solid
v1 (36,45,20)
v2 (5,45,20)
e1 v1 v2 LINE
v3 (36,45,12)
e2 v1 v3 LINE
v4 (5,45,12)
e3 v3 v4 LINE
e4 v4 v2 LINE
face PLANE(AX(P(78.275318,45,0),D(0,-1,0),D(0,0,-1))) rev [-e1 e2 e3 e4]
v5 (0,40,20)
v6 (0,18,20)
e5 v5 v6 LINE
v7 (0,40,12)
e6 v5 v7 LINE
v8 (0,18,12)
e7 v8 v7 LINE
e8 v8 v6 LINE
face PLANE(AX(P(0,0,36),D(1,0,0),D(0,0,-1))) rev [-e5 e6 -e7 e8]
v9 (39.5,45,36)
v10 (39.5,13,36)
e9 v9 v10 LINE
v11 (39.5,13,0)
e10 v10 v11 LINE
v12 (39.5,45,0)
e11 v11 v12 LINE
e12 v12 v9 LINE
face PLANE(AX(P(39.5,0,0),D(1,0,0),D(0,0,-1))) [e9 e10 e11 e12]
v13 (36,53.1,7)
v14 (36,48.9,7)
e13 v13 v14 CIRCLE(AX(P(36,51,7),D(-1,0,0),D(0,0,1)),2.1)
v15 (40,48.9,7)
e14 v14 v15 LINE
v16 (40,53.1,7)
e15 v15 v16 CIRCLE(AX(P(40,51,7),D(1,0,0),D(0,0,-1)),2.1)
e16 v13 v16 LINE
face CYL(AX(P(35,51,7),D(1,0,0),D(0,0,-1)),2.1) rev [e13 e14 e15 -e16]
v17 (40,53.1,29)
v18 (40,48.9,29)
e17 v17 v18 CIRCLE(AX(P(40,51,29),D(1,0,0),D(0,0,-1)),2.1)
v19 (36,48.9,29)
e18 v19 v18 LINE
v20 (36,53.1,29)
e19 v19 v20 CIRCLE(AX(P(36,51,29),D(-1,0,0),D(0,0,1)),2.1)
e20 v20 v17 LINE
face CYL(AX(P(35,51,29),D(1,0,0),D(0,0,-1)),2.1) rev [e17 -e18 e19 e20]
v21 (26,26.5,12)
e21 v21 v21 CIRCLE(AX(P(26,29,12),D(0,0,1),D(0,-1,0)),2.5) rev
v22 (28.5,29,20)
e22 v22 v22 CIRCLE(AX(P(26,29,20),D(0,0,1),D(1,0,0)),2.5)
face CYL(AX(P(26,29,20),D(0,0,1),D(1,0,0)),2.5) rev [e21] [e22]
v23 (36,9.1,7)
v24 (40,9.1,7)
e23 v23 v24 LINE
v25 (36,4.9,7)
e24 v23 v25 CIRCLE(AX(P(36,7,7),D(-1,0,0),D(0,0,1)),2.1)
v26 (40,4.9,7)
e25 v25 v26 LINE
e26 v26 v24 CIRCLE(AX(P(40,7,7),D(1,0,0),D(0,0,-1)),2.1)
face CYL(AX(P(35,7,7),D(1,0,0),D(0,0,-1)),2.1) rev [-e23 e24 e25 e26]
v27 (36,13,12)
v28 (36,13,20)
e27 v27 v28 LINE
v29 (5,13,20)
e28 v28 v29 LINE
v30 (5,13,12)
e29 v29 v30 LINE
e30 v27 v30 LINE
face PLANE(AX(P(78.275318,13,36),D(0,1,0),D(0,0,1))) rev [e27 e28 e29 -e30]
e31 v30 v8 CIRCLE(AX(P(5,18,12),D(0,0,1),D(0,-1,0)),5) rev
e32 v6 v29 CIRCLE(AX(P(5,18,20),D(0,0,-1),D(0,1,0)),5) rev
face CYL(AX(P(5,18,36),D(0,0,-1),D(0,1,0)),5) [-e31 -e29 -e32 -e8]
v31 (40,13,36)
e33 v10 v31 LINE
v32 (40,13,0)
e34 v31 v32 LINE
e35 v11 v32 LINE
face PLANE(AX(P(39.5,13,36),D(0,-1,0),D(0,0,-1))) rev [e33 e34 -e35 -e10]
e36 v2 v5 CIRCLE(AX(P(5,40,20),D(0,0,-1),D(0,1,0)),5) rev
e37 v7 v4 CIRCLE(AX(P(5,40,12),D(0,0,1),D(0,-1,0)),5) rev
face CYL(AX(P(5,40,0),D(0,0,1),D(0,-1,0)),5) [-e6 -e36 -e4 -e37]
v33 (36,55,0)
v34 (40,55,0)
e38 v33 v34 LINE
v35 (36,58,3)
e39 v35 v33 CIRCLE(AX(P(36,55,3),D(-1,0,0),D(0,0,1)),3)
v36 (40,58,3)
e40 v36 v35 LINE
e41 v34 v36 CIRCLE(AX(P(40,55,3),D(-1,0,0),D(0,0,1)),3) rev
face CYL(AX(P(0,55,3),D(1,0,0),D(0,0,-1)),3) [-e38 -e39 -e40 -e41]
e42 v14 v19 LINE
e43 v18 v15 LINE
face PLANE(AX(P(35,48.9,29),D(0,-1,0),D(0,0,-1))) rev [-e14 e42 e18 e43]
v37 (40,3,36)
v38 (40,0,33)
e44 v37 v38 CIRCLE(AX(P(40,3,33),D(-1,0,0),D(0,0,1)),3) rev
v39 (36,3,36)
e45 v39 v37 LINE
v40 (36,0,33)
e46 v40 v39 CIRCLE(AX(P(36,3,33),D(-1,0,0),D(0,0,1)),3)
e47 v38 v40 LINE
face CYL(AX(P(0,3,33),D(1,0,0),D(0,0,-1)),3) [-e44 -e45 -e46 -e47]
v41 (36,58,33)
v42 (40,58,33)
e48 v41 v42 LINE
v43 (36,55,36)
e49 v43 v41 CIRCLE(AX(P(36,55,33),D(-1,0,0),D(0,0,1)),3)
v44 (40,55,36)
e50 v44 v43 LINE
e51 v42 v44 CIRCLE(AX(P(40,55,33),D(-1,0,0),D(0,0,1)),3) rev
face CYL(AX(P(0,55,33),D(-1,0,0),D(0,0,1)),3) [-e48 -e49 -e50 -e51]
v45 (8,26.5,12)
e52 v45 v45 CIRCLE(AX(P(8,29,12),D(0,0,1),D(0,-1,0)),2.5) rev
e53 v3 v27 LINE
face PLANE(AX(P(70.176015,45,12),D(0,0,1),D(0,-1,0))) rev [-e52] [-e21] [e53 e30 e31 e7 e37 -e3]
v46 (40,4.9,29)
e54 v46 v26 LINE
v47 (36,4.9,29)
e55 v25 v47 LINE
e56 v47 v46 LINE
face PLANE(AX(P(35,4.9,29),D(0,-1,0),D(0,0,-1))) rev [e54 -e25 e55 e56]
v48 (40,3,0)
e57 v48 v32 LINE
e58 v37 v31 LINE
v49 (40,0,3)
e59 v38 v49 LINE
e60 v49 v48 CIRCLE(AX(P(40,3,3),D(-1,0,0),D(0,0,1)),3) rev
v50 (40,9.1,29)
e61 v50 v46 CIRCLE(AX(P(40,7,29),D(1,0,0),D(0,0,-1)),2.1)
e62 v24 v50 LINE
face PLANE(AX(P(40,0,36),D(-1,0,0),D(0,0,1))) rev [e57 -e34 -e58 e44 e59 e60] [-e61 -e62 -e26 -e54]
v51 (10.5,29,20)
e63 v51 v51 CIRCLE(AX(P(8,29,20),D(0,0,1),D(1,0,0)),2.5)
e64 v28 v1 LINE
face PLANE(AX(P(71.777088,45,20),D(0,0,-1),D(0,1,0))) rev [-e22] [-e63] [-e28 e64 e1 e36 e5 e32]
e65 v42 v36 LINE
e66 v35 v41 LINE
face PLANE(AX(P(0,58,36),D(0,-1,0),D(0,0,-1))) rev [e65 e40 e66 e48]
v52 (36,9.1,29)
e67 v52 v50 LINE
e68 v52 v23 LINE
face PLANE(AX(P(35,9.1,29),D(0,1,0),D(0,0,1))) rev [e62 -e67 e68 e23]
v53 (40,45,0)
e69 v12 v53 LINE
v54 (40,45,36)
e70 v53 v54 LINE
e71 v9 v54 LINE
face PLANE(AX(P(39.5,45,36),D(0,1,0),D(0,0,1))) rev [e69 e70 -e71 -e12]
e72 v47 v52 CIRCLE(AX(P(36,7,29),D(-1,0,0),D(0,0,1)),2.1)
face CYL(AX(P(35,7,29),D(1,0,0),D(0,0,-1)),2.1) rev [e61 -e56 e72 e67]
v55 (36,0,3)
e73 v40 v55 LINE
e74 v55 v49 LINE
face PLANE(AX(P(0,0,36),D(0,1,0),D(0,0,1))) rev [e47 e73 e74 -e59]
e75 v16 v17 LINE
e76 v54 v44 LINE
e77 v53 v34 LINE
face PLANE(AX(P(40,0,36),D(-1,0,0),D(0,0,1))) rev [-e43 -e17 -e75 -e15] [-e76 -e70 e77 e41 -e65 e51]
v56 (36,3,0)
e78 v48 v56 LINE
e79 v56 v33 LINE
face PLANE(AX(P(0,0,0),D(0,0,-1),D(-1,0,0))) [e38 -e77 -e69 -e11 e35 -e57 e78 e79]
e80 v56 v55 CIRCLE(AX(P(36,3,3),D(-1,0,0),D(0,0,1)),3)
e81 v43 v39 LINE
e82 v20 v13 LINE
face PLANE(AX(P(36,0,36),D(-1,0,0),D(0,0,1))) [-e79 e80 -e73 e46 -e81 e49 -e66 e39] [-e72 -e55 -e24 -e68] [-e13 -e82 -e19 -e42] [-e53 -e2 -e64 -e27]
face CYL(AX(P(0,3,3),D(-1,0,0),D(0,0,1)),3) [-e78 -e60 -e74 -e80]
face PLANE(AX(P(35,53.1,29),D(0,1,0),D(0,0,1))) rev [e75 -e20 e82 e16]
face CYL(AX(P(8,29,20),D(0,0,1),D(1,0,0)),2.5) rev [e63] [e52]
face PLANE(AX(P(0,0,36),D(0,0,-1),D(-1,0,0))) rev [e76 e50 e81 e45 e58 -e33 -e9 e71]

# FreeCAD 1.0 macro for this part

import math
import FreeCAD as App
import Part
import Sketcher
Q = App.Units.Quantity


def edges_at(feature, points):
    """Names of the edges that pass closest to the given points."""
    edges = feature.Shape.Edges
    near = lambda p: min(range(len(edges)), key=lambda i: edges[i].distToShape(Part.Vertex(*p))[0])
    return sorted({f"Edge{near(p) + 1}" for p in points})

doc = App.newDocument("Part")
params = doc.addObject("Spreadsheet::Sheet", "Params")
for row, (alias, value) in enumerate([
    ("sketch1_width", "40 mm"),
    ("sketch1_height", "58 mm"),
    ("pad1_length", "36 mm"),
    ("sketch2_width", "13 mm"),
    ("sketch2_height", "36 mm"),
    ("pocket1_length", "36 mm"),
    ("sketch3_width", "32 mm"),
    ("sketch3_height", "16 mm"),
    ("pocket2_length", "36 mm"),
    ("sketch4_radius", "2.1 mm"),
    ("sketch4_height", "22 mm"),
    ("pocket3_length", "5 mm"),
    ("sketch5_diameter", "5 mm"),
    ("hole_diameter", "5 mm"),
    ("hole_depth", "15 mm"),
    ("sketch6_width", "32 mm"),
    ("sketch6_height", "12 mm"),
    ("pocket4_length", "36 mm"),
    ("fillet_radius", "3 mm"),
    ("fillet2_radius", "5 mm"),
    ("sketch7_width", "32 mm"),
    ("sketch7_height", "36 mm"),
    ("pocket5_length", "0.5 mm"),
], start=1):
    params.set(f"A{row}", alias)
    params.set(f"B{row}", "=" + value)
    params.setAlias(f"B{row}", alias)

body = doc.addObject("PartDesign::Body", "Body")

# Sketch on XY plane
sketch1 = body.newObject("Sketcher::SketchObject", "Sketch")
sketch1.AttachmentSupport = (doc.getObject("XY_Plane"), [""])
sketch1.MapMode = "FlatFace"
sketch1.addGeometry(Part.LineSegment(App.Vector(0, 58, 0), App.Vector(0, 0, 0)), False)
sketch1.addGeometry(Part.LineSegment(App.Vector(0, 0, 0), App.Vector(40, 0, 0)), False)
sketch1.addGeometry(Part.LineSegment(App.Vector(40, 0, 0), App.Vector(40, 58, 0)), False)
sketch1.addGeometry(Part.LineSegment(App.Vector(40, 58, 0), App.Vector(0, 58, 0)), False)
sketch1.addConstraint(Sketcher.Constraint("Coincident", 0, 2, 1, 1))
sketch1.addConstraint(Sketcher.Constraint("Coincident", 1, 2, 2, 1))
sketch1.addConstraint(Sketcher.Constraint("Coincident", 2, 2, 3, 1))
sketch1.addConstraint(Sketcher.Constraint("Coincident", 3, 2, 0, 1))
sketch1.addConstraint(Sketcher.Constraint("Vertical", 0))
sketch1.addConstraint(Sketcher.Constraint("Horizontal", 1))
sketch1.addConstraint(Sketcher.Constraint("Vertical", 2))
sketch1.addConstraint(Sketcher.Constraint("Horizontal", 3))
sketch1.addConstraint(Sketcher.Constraint("Coincident", 0, 2, -1, 1))
sketch1.addConstraint(Sketcher.Constraint("DistanceX", 1, 1, 1, 2, Q("40 mm")))
sketch1.addConstraint(Sketcher.Constraint("DistanceY", 0, 2, 0, 1, Q("58 mm")))
sketch1.setExpression("Constraints[9]", "Params.sketch1_width")
sketch1.setExpression("Constraints[10]", "Params.sketch1_height")
pad1 = body.newObject("PartDesign::Pad", "Pad")
pad1.Profile = sketch1
pad1.setExpression("Length", "Params.pad1_length")

# Sketch on YZ plane
sketch2 = body.newObject("Sketcher::SketchObject", "Sketch001")
sketch2.AttachmentSupport = (doc.getObject("YZ_Plane"), [""])
sketch2.MapMode = "FlatFace"
sketch2.addGeometry(Part.LineSegment(App.Vector(58, 0, 0), App.Vector(45, 0, 0)), False)
sketch2.addGeometry(Part.LineSegment(App.Vector(45, 0, 0), App.Vector(45, 36, 0)), False)
sketch2.addGeometry(Part.LineSegment(App.Vector(45, 36, 0), App.Vector(58, 36, 0)), False)
sketch2.addGeometry(Part.LineSegment(App.Vector(58, 36, 0), App.Vector(58, 0, 0)), False)
sketch2.addGeometry(Part.LineSegment(App.Vector(13, 0, 0), App.Vector(0, 0, 0)), False)
sketch2.addGeometry(Part.LineSegment(App.Vector(0, 0, 0), App.Vector(0, 36, 0)), False)
sketch2.addGeometry(Part.LineSegment(App.Vector(0, 36, 0), App.Vector(13, 36, 0)), False)
sketch2.addGeometry(Part.LineSegment(App.Vector(13, 36, 0), App.Vector(13, 0, 0)), False)
sketch2.addConstraint(Sketcher.Constraint("Coincident", 0, 2, 1, 1))
sketch2.addConstraint(Sketcher.Constraint("Coincident", 1, 2, 2, 1))
sketch2.addConstraint(Sketcher.Constraint("Coincident", 2, 2, 3, 1))
sketch2.addConstraint(Sketcher.Constraint("Coincident", 3, 2, 0, 1))
sketch2.addConstraint(Sketcher.Constraint("Coincident", 4, 2, 5, 1))
sketch2.addConstraint(Sketcher.Constraint("Coincident", 5, 2, 6, 1))
sketch2.addConstraint(Sketcher.Constraint("Coincident", 6, 2, 7, 1))
sketch2.addConstraint(Sketcher.Constraint("Coincident", 7, 2, 4, 1))
sketch2.addConstraint(Sketcher.Constraint("Horizontal", 0))
sketch2.addConstraint(Sketcher.Constraint("Vertical", 1))
sketch2.addConstraint(Sketcher.Constraint("Horizontal", 2))
sketch2.addConstraint(Sketcher.Constraint("Vertical", 3))
sketch2.addConstraint(Sketcher.Constraint("Horizontal", 4))
sketch2.addConstraint(Sketcher.Constraint("Vertical", 5))
sketch2.addConstraint(Sketcher.Constraint("Horizontal", 6))
sketch2.addConstraint(Sketcher.Constraint("Vertical", 7))
sketch2.addConstraint(Sketcher.Constraint("Coincident", 4, 2, -1, 1))
sketch2.addConstraint(Sketcher.Constraint("PointOnObject", 0, 2, -1))
sketch2.addConstraint(Sketcher.Constraint("Horizontal", 2, 2, 5, 2))
sketch2.addConstraint(Sketcher.Constraint("Equal", 2, 4))
sketch2.addConstraint(Sketcher.Constraint("DistanceX", 0, 2, 0, 1, Q("13 mm")))
sketch2.addConstraint(Sketcher.Constraint("DistanceY", 1, 1, 1, 2, Q("36 mm")))
sketch2.addConstraint(Sketcher.Constraint("DistanceX", -1, 1, 0, 2, Q("45 mm")))
sketch2.setExpression("Constraints[20]", "Params.sketch2_width")
sketch2.setExpression("Constraints[21]", "Params.sketch2_height")
pocket1 = body.newObject("PartDesign::Pocket", "Pocket")
pocket1.Profile = sketch2
pocket1.setExpression("Length", "Params.pocket1_length")
pocket1.Reversed = True

# Sketch on YZ plane
sketch3 = body.newObject("Sketcher::SketchObject", "Sketch002")
sketch3.AttachmentSupport = (doc.getObject("YZ_Plane"), [""])
sketch3.MapMode = "FlatFace"
sketch3.addGeometry(Part.LineSegment(App.Vector(45, 20, 0), App.Vector(13, 20, 0)), False)
sketch3.addGeometry(Part.LineSegment(App.Vector(13, 20, 0), App.Vector(13, 36, 0)), False)
sketch3.addGeometry(Part.LineSegment(App.Vector(13, 36, 0), App.Vector(45, 36, 0)), False)
sketch3.addGeometry(Part.LineSegment(App.Vector(45, 36, 0), App.Vector(45, 20, 0)), False)
sketch3.addConstraint(Sketcher.Constraint("Coincident", 0, 2, 1, 1))
sketch3.addConstraint(Sketcher.Constraint("Coincident", 1, 2, 2, 1))
sketch3.addConstraint(Sketcher.Constraint("Coincident", 2, 2, 3, 1))
sketch3.addConstraint(Sketcher.Constraint("Coincident", 3, 2, 0, 1))
sketch3.addConstraint(Sketcher.Constraint("Horizontal", 0))
sketch3.addConstraint(Sketcher.Constraint("Vertical", 1))
sketch3.addConstraint(Sketcher.Constraint("Horizontal", 2))
sketch3.addConstraint(Sketcher.Constraint("Vertical", 3))
sketch3.addConstraint(Sketcher.Constraint("DistanceX", 0, 2, 0, 1, Q("32 mm")))
sketch3.addConstraint(Sketcher.Constraint("DistanceY", 1, 1, 1, 2, Q("16 mm")))
sketch3.addConstraint(Sketcher.Constraint("DistanceX", -1, 1, 0, 2, Q("13 mm")))
sketch3.addConstraint(Sketcher.Constraint("DistanceY", -1, 1, 0, 2, Q("20 mm")))
sketch3.setExpression("Constraints[8]", "Params.sketch3_width")
sketch3.setExpression("Constraints[9]", "Params.sketch3_height")
pocket2 = body.newObject("PartDesign::Pocket", "Pocket001")
pocket2.Profile = sketch3
pocket2.setExpression("Length", "Params.pocket2_length")
pocket2.Reversed = True

# Sketch on YZ plane
sketch4 = body.newObject("Sketcher::SketchObject", "Sketch003")
sketch4.AttachmentSupport = (doc.getObject("YZ_Plane"), [""])
sketch4.MapMode = "FlatFace"
sketch4.AttachmentOffset = App.Placement(App.Vector(0, 0, 40), App.Rotation())
sketch4.addGeometry(Part.LineSegment(App.Vector(53.1, 7, 0), App.Vector(53.1, 29, 0)), False)
sketch4.addGeometry(Part.ArcOfCircle(Part.Circle(App.Vector(51, 29, 0), App.Vector(0, 0, 1), 2.1), math.radians(0), math.radians(180)), False)
sketch4.addGeometry(Part.LineSegment(App.Vector(48.9, 29, 0), App.Vector(48.9, 7, 0)), False)
sketch4.addGeometry(Part.ArcOfCircle(Part.Circle(App.Vector(51, 7, 0), App.Vector(0, 0, 1), 2.1), math.radians(180), math.radians(360)), False)
sketch4.addGeometry(Part.LineSegment(App.Vector(9.1, 7, 0), App.Vector(9.1, 29, 0)), False)
sketch4.addGeometry(Part.ArcOfCircle(Part.Circle(App.Vector(7, 29, 0), App.Vector(0, 0, 1), 2.1), math.radians(0), math.radians(180)), False)
sketch4.addGeometry(Part.LineSegment(App.Vector(4.9, 29, 0), App.Vector(4.9, 7, 0)), False)
sketch4.addGeometry(Part.ArcOfCircle(Part.Circle(App.Vector(7, 7, 0), App.Vector(0, 0, 1), 2.1), math.radians(180), math.radians(360)), False)
sketch4.addConstraint(Sketcher.Constraint("Tangent", 0, 2, 1, 1))
sketch4.addConstraint(Sketcher.Constraint("Tangent", 1, 2, 2, 1))
sketch4.addConstraint(Sketcher.Constraint("Tangent", 2, 2, 3, 1))
sketch4.addConstraint(Sketcher.Constraint("Tangent", 3, 2, 0, 1))
sketch4.addConstraint(Sketcher.Constraint("Tangent", 4, 2, 5, 1))
sketch4.addConstraint(Sketcher.Constraint("Tangent", 5, 2, 6, 1))
sketch4.addConstraint(Sketcher.Constraint("Tangent", 6, 2, 7, 1))
sketch4.addConstraint(Sketcher.Constraint("Tangent", 7, 2, 4, 1))
sketch4.addConstraint(Sketcher.Constraint("Vertical", 0))
sketch4.addConstraint(Sketcher.Constraint("Vertical", 2))
sketch4.addConstraint(Sketcher.Constraint("Vertical", 4))
sketch4.addConstraint(Sketcher.Constraint("Vertical", 6))
sketch4.addConstraint(Sketcher.Constraint("Equal", 3, 5))
sketch4.addConstraint(Sketcher.Constraint("Horizontal", 1, 3, 5, 3))
sketch4.addConstraint(Sketcher.Constraint("Horizontal", 3, 3, 7, 3))
sketch4.addConstraint(Sketcher.Constraint("Radius", 1, Q("2.1 mm")))
sketch4.addConstraint(Sketcher.Constraint("DistanceY", 0, 1, 0, 2, Q("22 mm")))
sketch4.addConstraint(Sketcher.Constraint("DistanceX", -1, 1, 1, 3, Q("51 mm")))
sketch4.addConstraint(Sketcher.Constraint("DistanceY", -1, 1, 1, 3, Q("29 mm")))
sketch4.addConstraint(Sketcher.Constraint("DistanceX", -1, 1, 5, 3, Q("7 mm")))
sketch4.setExpression("Constraints[15]", "Params.sketch4_radius")
sketch4.setExpression("Constraints[16]", "Params.sketch4_height")
pocket3 = body.newObject("PartDesign::Pocket", "Pocket002")
pocket3.Profile = sketch4
pocket3.setExpression("Length", "Params.pocket3_length")

# Sketch on XY plane
sketch5 = body.newObject("Sketcher::SketchObject", "Sketch004")
sketch5.AttachmentSupport = (doc.getObject("XY_Plane"), [""])
sketch5.MapMode = "FlatFace"
sketch5.AttachmentOffset = App.Placement(App.Vector(0, 0, 20), App.Rotation())
sketch5.addGeometry(Part.Circle(App.Vector(26, 29, 0), App.Vector(0, 0, 1), 2.5), False)
sketch5.addGeometry(Part.Circle(App.Vector(8, 29, 0), App.Vector(0, 0, 1), 2.5), False)
sketch5.addConstraint(Sketcher.Constraint("Equal", 0, 1))
sketch5.addConstraint(Sketcher.Constraint("Horizontal", 0, 3, 1, 3))
sketch5.addConstraint(Sketcher.Constraint("Diameter", 0, Q("5 mm")))
sketch5.addConstraint(Sketcher.Constraint("DistanceX", -1, 1, 0, 3, Q("26 mm")))
sketch5.addConstraint(Sketcher.Constraint("DistanceY", -1, 1, 0, 3, Q("29 mm")))
sketch5.addConstraint(Sketcher.Constraint("DistanceX", -1, 1, 1, 3, Q("8 mm")))
sketch5.setExpression("Constraints[2]", "Params.sketch5_diameter")
doc.recompute()
hole = body.newObject("PartDesign::Hole", "Hole")
hole.Profile = sketch5
hole.ThreadType = "None"
hole.setExpression("Diameter", "Params.hole_diameter")
hole.DepthType = "Dimension"
hole.setExpression("Depth", "Params.hole_depth")
hole.DrillPoint = "Angled"
hole.DrillPointAngle = 118

# Sketch on YZ plane
sketch6 = body.newObject("Sketcher::SketchObject", "Sketch005")
sketch6.AttachmentSupport = (doc.getObject("YZ_Plane"), [""])
sketch6.MapMode = "FlatFace"
sketch6.AttachmentOffset = App.Placement(App.Vector(0, 0, 36), App.Rotation())
sketch6.addGeometry(Part.LineSegment(App.Vector(45, 0, 0), App.Vector(13, 0, 0)), False)
sketch6.addGeometry(Part.LineSegment(App.Vector(13, 0, 0), App.Vector(13, 12, 0)), False)
sketch6.addGeometry(Part.LineSegment(App.Vector(13, 12, 0), App.Vector(45, 12, 0)), False)
sketch6.addGeometry(Part.LineSegment(App.Vector(45, 12, 0), App.Vector(45, 0, 0)), False)
sketch6.addConstraint(Sketcher.Constraint("Coincident", 0, 2, 1, 1))
sketch6.addConstraint(Sketcher.Constraint("Coincident", 1, 2, 2, 1))
sketch6.addConstraint(Sketcher.Constraint("Coincident", 2, 2, 3, 1))
sketch6.addConstraint(Sketcher.Constraint("Coincident", 3, 2, 0, 1))
sketch6.addConstraint(Sketcher.Constraint("Horizontal", 0))
sketch6.addConstraint(Sketcher.Constraint("Vertical", 1))
sketch6.addConstraint(Sketcher.Constraint("Horizontal", 2))
sketch6.addConstraint(Sketcher.Constraint("Vertical", 3))
sketch6.addConstraint(Sketcher.Constraint("PointOnObject", 0, 2, -1))
sketch6.addConstraint(Sketcher.Constraint("DistanceX", 0, 2, 0, 1, Q("32 mm")))
sketch6.addConstraint(Sketcher.Constraint("DistanceY", 1, 1, 1, 2, Q("12 mm")))
sketch6.addConstraint(Sketcher.Constraint("DistanceX", -1, 1, 0, 2, Q("13 mm")))
sketch6.setExpression("Constraints[9]", "Params.sketch6_width")
sketch6.setExpression("Constraints[10]", "Params.sketch6_height")
pocket4 = body.newObject("PartDesign::Pocket", "Pocket003")
pocket4.Profile = sketch6
pocket4.setExpression("Length", "Params.pocket4_length")
doc.recompute()

fillet = body.newObject("PartDesign::Fillet", "Fillet")
fillet.Base = (pocket4, edges_at(pocket4, [
    (38, 58, 36),
    (38, 0, 0),
    (38, 0, 36),
    (38, 58, 0),
]))
fillet.setExpression("Radius", "Params.fillet_radius")
doc.recompute()

fillet2 = body.newObject("PartDesign::Fillet", "Fillet001")
fillet2.Base = (fillet, edges_at(fillet, [(0, 45, 16), (0, 13, 16)]))
fillet2.setExpression("Radius", "Params.fillet2_radius")

# Sketch on YZ plane
sketch7 = body.newObject("Sketcher::SketchObject", "Sketch006")
sketch7.AttachmentSupport = (doc.getObject("YZ_Plane"), [""])
sketch7.MapMode = "FlatFace"
sketch7.AttachmentOffset = App.Placement(App.Vector(0, 0, 40), App.Rotation())
sketch7.addGeometry(Part.LineSegment(App.Vector(45, 36, 0), App.Vector(13, 36, 0)), False)
sketch7.addGeometry(Part.LineSegment(App.Vector(13, 36, 0), App.Vector(13, 0, 0)), False)
sketch7.addGeometry(Part.LineSegment(App.Vector(13, 0, 0), App.Vector(45, 0, 0)), False)
sketch7.addGeometry(Part.LineSegment(App.Vector(45, 0, 0), App.Vector(45, 36, 0)), False)
sketch7.addConstraint(Sketcher.Constraint("Coincident", 0, 2, 1, 1))
sketch7.addConstraint(Sketcher.Constraint("Coincident", 1, 2, 2, 1))
sketch7.addConstraint(Sketcher.Constraint("Coincident", 2, 2, 3, 1))
sketch7.addConstraint(Sketcher.Constraint("Coincident", 3, 2, 0, 1))
sketch7.addConstraint(Sketcher.Constraint("Horizontal", 0))
sketch7.addConstraint(Sketcher.Constraint("Vertical", 1))
sketch7.addConstraint(Sketcher.Constraint("Horizontal", 2))
sketch7.addConstraint(Sketcher.Constraint("Vertical", 3))
sketch7.addConstraint(Sketcher.Constraint("PointOnObject", 1, 2, -1))
sketch7.addConstraint(Sketcher.Constraint("DistanceX", 0, 2, 0, 1, Q("32 mm")))
sketch7.addConstraint(Sketcher.Constraint("DistanceY", 1, 2, 1, 1, Q("36 mm")))
sketch7.addConstraint(Sketcher.Constraint("DistanceX", -1, 1, 0, 2, Q("13 mm")))
sketch7.setExpression("Constraints[9]", "Params.sketch7_width")
sketch7.setExpression("Constraints[10]", "Params.sketch7_height")
pocket5 = body.newObject("PartDesign::Pocket", "Pocket004")
pocket5.Profile = sketch7
pocket5.setExpression("Length", "Params.pocket5_length")

doc.recompute()
